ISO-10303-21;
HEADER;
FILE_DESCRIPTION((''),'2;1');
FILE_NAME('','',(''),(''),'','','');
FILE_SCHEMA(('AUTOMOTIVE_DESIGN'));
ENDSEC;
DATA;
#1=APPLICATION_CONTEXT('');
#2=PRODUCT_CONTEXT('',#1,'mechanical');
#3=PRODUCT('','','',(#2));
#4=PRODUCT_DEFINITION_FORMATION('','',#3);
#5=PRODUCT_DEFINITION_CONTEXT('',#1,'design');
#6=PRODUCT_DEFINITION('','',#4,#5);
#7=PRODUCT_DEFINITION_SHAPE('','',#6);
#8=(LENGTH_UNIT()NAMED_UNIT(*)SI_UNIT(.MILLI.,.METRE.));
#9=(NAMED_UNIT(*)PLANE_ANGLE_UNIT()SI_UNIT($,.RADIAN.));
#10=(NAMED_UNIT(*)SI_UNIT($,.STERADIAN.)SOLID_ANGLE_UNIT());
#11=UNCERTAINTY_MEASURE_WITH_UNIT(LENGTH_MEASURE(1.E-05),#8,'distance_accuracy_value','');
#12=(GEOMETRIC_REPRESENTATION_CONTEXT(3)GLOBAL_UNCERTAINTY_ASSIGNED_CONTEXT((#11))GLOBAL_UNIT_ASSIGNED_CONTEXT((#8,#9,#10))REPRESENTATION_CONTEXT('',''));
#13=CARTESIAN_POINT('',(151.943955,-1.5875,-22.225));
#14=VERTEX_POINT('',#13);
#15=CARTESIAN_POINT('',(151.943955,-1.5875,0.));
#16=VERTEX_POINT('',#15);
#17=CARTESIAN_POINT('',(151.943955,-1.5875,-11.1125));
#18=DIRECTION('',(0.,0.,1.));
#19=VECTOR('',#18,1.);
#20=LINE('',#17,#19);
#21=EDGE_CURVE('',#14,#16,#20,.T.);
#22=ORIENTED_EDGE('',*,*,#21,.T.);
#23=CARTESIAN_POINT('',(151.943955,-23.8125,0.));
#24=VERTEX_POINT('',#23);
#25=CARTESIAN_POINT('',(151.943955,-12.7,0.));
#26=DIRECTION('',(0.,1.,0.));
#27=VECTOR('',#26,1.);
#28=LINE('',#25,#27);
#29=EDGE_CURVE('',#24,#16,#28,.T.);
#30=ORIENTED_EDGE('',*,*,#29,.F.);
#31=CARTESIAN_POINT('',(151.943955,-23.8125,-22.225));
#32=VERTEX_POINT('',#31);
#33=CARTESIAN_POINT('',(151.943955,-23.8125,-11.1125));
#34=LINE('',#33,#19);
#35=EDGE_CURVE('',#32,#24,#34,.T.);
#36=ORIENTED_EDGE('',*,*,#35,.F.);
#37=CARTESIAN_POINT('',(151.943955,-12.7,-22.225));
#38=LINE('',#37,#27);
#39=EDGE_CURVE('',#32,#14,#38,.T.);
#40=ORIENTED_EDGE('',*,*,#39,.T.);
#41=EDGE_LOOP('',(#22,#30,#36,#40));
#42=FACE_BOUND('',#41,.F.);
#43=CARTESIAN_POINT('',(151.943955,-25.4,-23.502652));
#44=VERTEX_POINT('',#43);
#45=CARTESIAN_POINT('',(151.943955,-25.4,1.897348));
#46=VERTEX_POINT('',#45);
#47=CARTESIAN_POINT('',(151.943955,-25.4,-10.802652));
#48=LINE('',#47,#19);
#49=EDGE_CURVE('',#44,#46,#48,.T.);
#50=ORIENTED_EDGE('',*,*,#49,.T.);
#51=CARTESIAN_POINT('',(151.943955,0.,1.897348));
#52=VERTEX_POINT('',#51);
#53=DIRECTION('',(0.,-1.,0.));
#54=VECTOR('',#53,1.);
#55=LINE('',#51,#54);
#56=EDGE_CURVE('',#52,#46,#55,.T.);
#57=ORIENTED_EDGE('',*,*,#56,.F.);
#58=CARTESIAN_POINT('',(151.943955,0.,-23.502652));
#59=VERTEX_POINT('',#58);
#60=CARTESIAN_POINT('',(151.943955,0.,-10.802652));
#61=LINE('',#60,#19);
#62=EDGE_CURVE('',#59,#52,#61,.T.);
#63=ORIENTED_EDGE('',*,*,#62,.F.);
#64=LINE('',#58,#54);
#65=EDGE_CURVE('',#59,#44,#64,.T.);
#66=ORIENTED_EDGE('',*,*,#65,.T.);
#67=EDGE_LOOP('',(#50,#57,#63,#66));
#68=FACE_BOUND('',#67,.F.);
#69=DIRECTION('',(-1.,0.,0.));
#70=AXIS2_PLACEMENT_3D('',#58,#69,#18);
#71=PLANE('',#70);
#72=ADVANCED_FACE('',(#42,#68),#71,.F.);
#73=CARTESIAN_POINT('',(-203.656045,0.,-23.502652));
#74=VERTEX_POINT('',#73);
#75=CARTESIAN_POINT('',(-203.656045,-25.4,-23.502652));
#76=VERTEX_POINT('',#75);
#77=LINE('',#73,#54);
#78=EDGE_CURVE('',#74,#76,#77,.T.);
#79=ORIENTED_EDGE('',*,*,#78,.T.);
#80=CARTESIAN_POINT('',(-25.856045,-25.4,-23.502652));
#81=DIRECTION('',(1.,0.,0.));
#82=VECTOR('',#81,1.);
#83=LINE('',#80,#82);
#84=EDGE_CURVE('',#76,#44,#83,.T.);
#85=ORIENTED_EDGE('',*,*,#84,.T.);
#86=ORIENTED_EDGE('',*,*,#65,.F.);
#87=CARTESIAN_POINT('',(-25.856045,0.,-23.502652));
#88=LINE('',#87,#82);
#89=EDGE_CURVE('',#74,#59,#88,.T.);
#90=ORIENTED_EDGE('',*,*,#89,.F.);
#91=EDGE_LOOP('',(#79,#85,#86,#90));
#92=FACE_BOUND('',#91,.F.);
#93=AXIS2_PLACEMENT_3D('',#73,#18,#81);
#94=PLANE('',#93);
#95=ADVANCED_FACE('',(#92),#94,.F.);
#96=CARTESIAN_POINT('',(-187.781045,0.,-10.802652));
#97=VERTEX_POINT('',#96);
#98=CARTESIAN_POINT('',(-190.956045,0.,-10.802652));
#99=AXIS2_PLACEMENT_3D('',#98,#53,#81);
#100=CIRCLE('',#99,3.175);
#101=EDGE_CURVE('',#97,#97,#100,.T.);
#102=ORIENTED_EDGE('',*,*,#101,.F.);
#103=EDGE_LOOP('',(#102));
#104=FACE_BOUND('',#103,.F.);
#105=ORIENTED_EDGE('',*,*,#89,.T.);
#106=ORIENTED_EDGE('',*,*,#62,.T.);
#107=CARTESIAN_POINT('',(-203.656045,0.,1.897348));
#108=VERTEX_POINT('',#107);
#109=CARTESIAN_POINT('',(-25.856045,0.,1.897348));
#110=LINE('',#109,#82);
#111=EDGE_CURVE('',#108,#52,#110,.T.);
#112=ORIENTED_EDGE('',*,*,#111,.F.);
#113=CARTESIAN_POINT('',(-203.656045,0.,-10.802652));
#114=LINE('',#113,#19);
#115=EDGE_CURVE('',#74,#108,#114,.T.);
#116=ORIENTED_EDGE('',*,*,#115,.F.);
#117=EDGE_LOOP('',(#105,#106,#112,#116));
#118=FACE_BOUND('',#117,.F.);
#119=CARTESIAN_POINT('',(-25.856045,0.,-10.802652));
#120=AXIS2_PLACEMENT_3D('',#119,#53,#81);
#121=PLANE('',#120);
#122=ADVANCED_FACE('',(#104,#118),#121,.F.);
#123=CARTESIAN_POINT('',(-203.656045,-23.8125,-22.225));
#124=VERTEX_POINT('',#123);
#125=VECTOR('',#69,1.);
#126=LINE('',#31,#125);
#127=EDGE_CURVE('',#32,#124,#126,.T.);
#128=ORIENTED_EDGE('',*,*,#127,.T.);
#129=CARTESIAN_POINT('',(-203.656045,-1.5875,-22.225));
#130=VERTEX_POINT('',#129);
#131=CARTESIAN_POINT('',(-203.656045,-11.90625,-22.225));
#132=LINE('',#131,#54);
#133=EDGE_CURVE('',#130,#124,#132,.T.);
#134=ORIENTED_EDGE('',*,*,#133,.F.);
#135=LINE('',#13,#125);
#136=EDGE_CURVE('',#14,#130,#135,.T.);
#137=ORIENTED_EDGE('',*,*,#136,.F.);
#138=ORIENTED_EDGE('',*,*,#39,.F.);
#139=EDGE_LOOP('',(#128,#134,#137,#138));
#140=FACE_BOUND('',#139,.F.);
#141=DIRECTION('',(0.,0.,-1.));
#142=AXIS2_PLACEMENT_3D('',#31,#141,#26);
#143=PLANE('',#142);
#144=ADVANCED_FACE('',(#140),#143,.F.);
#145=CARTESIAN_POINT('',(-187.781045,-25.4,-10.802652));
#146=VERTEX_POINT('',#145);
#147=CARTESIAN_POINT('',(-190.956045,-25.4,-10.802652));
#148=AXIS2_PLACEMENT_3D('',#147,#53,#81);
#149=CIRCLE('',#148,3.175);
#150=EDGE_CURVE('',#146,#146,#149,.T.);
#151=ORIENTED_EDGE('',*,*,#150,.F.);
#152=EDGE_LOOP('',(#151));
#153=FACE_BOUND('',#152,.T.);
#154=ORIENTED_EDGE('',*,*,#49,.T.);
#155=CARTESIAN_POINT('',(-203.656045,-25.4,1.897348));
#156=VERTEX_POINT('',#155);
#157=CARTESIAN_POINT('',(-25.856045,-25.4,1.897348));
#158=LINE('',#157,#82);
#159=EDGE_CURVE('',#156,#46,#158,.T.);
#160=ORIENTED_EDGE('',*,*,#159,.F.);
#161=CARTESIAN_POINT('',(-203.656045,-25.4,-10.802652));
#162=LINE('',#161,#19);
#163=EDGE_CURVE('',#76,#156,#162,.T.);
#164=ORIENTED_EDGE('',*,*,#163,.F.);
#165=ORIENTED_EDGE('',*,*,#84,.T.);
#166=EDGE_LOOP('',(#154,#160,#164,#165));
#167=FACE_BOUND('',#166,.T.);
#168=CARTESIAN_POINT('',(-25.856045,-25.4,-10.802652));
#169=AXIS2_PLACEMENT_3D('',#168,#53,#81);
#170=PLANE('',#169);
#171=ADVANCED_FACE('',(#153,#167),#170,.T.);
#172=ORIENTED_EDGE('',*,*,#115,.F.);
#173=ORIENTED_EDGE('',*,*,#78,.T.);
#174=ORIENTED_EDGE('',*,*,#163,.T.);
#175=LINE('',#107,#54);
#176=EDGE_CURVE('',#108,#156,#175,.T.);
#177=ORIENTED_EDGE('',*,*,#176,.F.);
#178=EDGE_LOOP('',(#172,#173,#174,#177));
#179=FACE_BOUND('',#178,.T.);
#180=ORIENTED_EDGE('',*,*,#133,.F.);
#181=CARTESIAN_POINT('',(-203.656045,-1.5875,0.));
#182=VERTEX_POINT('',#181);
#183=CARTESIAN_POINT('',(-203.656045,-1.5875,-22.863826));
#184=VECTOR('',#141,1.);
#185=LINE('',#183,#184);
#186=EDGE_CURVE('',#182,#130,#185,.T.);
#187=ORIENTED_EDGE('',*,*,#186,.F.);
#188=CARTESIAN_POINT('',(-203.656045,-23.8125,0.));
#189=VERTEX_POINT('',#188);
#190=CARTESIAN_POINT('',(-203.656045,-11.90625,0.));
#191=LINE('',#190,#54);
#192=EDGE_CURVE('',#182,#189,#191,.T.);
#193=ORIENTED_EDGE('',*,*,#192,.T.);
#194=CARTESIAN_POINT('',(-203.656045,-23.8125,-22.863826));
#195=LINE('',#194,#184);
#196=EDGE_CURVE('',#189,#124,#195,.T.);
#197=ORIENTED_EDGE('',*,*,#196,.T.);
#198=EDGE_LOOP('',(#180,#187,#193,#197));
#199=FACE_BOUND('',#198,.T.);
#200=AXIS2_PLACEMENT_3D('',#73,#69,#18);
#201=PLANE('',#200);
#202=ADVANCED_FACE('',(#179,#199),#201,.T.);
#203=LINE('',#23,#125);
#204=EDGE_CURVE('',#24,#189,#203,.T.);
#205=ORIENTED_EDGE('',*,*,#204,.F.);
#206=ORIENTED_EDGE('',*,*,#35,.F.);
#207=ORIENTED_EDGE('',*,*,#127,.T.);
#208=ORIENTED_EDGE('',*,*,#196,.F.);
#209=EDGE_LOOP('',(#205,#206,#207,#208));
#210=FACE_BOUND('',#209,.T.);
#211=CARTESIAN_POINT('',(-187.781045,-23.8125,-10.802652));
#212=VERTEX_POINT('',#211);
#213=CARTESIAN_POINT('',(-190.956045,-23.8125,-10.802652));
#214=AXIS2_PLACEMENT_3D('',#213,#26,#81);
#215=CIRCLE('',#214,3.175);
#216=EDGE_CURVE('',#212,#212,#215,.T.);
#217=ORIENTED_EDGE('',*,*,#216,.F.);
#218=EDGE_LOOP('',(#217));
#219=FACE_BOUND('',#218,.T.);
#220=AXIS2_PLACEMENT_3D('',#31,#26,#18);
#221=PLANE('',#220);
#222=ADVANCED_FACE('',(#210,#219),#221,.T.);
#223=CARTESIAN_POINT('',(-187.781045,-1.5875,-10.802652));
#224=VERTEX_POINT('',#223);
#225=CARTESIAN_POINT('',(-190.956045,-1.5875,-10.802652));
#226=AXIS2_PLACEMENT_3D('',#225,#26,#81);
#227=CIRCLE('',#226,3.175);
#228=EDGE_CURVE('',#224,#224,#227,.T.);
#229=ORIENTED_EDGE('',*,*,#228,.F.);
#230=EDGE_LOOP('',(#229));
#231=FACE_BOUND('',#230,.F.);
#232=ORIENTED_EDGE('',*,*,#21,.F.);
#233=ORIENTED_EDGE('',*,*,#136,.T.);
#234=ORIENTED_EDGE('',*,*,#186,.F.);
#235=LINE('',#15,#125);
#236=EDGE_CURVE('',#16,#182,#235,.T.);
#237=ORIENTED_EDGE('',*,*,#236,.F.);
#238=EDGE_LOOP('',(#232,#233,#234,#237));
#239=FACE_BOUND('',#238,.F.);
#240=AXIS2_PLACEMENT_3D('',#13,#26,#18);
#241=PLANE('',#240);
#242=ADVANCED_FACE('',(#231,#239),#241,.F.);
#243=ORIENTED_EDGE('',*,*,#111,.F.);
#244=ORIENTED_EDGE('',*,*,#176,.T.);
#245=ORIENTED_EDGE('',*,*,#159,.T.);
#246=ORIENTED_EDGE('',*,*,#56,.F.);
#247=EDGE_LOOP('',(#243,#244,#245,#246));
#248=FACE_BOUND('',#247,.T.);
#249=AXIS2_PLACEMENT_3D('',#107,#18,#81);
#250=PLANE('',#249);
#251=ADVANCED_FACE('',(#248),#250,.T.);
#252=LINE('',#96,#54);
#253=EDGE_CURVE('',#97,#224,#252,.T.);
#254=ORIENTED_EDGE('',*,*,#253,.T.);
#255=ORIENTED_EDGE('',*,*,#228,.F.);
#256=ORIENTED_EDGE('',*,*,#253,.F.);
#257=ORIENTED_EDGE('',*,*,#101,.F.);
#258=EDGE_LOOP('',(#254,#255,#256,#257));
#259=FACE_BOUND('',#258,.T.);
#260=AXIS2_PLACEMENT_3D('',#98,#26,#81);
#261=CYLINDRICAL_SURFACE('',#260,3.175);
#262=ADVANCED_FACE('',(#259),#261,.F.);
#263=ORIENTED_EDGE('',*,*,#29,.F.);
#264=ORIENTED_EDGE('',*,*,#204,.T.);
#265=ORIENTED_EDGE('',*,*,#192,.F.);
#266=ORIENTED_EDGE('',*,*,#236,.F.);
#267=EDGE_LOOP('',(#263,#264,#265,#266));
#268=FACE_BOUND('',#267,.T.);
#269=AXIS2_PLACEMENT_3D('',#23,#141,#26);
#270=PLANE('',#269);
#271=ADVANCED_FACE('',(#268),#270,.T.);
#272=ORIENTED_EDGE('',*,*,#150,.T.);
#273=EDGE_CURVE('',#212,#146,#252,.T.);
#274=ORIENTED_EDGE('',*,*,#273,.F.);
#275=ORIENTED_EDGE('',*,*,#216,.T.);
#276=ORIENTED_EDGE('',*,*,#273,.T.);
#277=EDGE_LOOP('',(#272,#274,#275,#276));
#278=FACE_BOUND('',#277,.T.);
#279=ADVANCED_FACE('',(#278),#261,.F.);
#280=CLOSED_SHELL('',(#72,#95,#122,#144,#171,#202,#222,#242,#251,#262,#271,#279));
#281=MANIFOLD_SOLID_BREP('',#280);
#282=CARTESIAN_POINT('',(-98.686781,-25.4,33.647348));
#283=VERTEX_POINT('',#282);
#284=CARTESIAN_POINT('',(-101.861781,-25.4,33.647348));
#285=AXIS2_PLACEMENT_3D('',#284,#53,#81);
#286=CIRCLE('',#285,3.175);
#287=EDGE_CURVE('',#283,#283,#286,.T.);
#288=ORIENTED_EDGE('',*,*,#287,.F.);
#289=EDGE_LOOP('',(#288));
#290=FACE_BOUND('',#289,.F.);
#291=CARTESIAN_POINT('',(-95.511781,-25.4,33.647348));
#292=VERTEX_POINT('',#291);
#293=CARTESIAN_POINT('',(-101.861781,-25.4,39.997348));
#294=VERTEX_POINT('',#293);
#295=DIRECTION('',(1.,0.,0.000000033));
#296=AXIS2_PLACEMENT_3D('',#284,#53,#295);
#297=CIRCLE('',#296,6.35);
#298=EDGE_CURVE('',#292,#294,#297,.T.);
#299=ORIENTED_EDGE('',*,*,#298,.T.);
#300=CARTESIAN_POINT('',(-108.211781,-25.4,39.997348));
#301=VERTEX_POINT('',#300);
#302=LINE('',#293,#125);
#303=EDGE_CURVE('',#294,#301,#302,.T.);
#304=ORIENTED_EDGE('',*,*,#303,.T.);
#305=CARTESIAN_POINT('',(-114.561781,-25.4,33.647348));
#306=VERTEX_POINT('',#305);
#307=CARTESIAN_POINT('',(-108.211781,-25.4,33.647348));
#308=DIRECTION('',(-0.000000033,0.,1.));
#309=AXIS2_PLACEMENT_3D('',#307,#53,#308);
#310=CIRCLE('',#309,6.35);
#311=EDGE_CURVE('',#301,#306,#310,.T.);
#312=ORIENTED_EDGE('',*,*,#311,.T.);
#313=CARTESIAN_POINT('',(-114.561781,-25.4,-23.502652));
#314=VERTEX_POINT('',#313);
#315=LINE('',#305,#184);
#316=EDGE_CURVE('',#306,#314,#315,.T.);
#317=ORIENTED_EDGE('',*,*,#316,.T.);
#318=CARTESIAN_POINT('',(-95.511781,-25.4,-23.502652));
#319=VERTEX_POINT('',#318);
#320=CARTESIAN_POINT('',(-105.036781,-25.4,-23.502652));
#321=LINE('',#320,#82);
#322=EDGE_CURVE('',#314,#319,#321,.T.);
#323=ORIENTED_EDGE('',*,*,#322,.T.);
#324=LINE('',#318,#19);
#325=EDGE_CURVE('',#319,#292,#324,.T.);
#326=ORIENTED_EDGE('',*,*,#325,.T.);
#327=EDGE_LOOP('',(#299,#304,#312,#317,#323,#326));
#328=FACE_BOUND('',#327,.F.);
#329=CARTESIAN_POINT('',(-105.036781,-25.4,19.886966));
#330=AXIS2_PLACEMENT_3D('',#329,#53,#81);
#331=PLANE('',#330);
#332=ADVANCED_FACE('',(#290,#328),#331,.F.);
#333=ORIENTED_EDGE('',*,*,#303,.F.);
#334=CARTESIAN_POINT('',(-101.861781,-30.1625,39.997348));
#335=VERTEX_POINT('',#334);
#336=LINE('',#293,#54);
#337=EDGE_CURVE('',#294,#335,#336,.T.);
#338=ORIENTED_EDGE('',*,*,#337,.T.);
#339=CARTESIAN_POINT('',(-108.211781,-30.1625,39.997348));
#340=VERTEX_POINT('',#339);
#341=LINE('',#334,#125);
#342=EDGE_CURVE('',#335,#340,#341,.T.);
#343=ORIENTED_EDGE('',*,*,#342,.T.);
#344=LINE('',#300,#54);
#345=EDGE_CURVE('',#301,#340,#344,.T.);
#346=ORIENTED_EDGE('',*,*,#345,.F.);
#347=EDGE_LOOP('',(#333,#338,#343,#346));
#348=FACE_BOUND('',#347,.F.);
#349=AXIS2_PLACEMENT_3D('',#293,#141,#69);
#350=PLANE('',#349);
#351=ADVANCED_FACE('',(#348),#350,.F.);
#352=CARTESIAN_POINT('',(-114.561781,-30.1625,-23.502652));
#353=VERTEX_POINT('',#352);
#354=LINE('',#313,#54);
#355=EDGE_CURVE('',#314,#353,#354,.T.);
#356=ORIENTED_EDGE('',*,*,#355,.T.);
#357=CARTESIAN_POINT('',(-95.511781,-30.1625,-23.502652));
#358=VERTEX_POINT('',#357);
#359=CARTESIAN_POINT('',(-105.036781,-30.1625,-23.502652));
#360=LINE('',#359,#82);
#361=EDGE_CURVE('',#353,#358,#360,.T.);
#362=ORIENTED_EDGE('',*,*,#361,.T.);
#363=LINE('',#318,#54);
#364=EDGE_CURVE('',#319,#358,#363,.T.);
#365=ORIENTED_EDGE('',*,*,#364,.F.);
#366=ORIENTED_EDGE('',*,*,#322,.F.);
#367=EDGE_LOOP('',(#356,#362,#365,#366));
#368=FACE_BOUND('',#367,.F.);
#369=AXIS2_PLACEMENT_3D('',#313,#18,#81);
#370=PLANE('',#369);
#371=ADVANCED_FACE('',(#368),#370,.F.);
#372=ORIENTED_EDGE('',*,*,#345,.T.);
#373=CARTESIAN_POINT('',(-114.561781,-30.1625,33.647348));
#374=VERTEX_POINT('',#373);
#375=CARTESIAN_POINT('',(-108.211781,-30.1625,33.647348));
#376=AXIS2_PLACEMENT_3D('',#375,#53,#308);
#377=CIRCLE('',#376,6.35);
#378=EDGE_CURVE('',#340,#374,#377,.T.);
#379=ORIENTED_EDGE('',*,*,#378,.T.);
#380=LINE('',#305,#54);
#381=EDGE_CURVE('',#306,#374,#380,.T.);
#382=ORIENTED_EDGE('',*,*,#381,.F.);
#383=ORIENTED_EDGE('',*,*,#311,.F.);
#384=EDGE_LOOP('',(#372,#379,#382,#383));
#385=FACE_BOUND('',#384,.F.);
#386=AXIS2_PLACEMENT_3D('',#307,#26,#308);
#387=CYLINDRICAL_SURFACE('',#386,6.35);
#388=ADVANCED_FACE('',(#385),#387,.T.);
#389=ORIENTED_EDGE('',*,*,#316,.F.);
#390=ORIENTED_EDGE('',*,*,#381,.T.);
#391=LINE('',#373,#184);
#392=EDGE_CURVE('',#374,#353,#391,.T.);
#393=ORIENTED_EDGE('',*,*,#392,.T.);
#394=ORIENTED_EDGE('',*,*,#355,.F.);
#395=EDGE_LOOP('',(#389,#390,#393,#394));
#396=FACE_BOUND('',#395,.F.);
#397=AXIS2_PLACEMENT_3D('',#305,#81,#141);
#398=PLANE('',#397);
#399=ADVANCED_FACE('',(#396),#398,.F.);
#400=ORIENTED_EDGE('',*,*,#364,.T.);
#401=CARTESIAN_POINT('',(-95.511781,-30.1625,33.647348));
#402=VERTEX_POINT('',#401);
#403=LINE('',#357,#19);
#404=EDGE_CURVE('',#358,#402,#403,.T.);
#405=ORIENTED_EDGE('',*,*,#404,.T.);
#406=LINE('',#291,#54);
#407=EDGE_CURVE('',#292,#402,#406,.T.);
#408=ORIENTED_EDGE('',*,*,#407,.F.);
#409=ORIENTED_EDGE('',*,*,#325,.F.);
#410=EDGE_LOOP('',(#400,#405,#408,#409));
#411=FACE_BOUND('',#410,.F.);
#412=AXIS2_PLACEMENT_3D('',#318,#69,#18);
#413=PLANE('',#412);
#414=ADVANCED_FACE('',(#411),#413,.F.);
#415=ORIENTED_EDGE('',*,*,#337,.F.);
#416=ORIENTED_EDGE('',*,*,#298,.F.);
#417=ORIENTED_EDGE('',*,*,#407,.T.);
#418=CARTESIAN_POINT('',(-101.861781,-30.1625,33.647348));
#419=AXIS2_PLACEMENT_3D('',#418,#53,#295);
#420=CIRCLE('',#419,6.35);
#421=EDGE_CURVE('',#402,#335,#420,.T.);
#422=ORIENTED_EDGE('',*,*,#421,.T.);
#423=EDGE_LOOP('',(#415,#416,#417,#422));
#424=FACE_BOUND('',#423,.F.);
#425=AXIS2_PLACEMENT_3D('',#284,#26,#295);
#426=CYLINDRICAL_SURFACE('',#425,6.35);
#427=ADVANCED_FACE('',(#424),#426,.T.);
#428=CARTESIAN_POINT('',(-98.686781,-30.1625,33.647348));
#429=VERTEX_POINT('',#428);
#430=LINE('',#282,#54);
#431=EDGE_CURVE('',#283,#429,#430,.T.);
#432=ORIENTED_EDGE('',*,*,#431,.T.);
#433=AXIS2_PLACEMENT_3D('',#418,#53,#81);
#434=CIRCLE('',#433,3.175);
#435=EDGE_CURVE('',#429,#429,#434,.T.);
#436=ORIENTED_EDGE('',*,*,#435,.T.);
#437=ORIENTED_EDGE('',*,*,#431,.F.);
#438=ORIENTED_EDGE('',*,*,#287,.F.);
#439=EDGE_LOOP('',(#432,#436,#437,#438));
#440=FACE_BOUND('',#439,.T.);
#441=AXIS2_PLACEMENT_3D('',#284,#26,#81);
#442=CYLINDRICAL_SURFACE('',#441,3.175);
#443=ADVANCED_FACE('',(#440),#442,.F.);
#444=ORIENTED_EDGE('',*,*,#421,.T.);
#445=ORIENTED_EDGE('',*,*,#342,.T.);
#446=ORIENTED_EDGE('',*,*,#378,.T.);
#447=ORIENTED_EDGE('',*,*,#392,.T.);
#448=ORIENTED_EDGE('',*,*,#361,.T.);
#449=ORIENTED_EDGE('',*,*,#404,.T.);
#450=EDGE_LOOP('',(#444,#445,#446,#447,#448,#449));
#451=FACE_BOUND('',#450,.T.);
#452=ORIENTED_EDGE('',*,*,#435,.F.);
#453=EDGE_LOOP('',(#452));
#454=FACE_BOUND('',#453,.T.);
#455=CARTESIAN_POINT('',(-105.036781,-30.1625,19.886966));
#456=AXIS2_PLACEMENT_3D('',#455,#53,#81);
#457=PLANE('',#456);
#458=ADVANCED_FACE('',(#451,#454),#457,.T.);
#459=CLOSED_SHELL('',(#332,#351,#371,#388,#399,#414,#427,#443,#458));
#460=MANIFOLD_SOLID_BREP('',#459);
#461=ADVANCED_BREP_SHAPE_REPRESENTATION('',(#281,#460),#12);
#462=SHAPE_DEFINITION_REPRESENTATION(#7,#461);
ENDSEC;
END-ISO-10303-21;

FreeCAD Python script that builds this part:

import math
import FreeCAD as App
import Part
import Sketcher
from FreeCAD import Vector
Q = App.Units.Quantity


def add_polygon(sketch, points):
    """Adds a closed chain of lines whose ends are joined by coincident constraints."""
    first, n = sketch.GeometryCount, len(points)
    for a, b in zip(points, points[1:] + points[:1]):
        sketch.addGeometry(Part.LineSegment(App.Vector(*a, 0), App.Vector(*b, 0)), False)
    for i in range(n):
        sketch.addConstraint(Sketcher.Constraint("Coincident", first + i, 2, first + (i + 1) % n, 1))

doc = App.newDocument("Part")
body = doc.addObject("PartDesign::Body", "Body")

# Sketch on XZ plane
sketch1 = doc.addObject("Sketcher::SketchObject", "Sketch")
body.addObject(sketch1)
sketch1.AttachmentSupport = (doc.XZ_Plane, [""])
sketch1.MapMode = "FlatFace"
add_polygon(sketch1, [(-203.7, 1.9), (-203.7, -23.5), (151.9, -23.5), (151.9, 1.9)])  # lines 0-3
sketch1.addGeometry(Part.Circle(Vector(-191, -10.8, 0), Vector(0, 0, 1), 3.2), False)  # 4
sketch1.addConstraint([
    Sketcher.Constraint("Vertical", 0),
    Sketcher.Constraint("Horizontal", 1),
    Sketcher.Constraint("Vertical", 2),
    Sketcher.Constraint("Horizontal", 3),
    Sketcher.Constraint("Diameter", 4, Q("0.25 in")),
    Sketcher.Constraint("DistanceX", 1, 1, 1, 2, Q("14 in")),
    Sketcher.Constraint("DistanceY", 0, 2, 0, 1, Q("1 in")),
    Sketcher.Constraint("DistanceX", 0, 2, 4, 3, Q("0.5 in")),
    Sketcher.Constraint("DistanceY", 0, 2, 4, 3, Q("0.5 in")),
    Sketcher.Constraint("DistanceX", 4, 3, -1, 1, Q("190.956045 mm")),
    Sketcher.Constraint("DistanceY", 4, 3, -1, 1, Q("10.802652 mm")),
])
pad1 = doc.addObject("PartDesign::Pad", "Pad")
body.addObject(pad1)
pad1.Profile = sketch1
pad1.Length = Q("1 in")

# Sketch on YZ plane
sketch2 = doc.addObject("Sketcher::SketchObject", "Sketch001")
body.addObject(sketch2)
sketch2.AttachmentSupport = (doc.YZ_Plane, [""])
sketch2.MapMode = "FlatFace"
sketch2.AttachmentOffset = App.Placement(Vector(0, 0, 151.943955), App.Rotation())
add_polygon(sketch2, [(-24, 0), (-24, -22), (-2, -22), (-2, 0)])  # lines 0-3
sketch2.addConstraint([
    Sketcher.Constraint("Vertical", 0),
    Sketcher.Constraint("Horizontal", 1),
    Sketcher.Constraint("Vertical", 2),
    Sketcher.Constraint("Horizontal", 3),
    Sketcher.Constraint("PointOnObject", 2, 2, -1),
    Sketcher.Constraint("Equal", 3, 0),
    Sketcher.Constraint("DistanceX", 1, 1, 1, 2, Q("0.875 in")),
    Sketcher.Constraint("DistanceX", 0, 2, -1, 1, Q("0.9375 in")),
])
pocket1 = doc.addObject("PartDesign::Pocket", "Pocket")
body.addObject(pocket1)
pocket1.Profile = sketch2
pocket1.Type = "ThroughAll"
body2 = doc.addObject("PartDesign::Body", "Body001")

# Sketch on XZ plane
sketch3 = doc.addObject("Sketcher::SketchObject", "Sketch002")
body2.addObject(sketch3)
sketch3.AttachmentSupport = (doc.getObject("XZ_Plane001"), [""])
sketch3.MapMode = "FlatFace"
sketch3.AttachmentOffset = App.Placement(Vector(0, 0, 1 * 25.4), App.Rotation())
sketch3.addGeometry([
    Part.LineSegment(Vector(-114.6, 33.6, 0), Vector(-114.6, -23.5, 0)),  # 0
    Part.LineSegment(Vector(-114.6, -23.5, 0), Vector(-95.5, -23.5, 0)),  # 1
    Part.LineSegment(Vector(-95.5, -23.5, 0), Vector(-95.5, 33.6, 0)),  # 2
    Part.ArcOfCircle(Part.Circle(Vector(-101.9, 33.6, 0), Vector(0, 0, 1), 6.4), math.radians(0), math.radians(90)),  # 3
    Part.LineSegment(Vector(-101.9, 40, 0), Vector(-108.2, 40, 0)),  # 4
    Part.ArcOfCircle(Part.Circle(Vector(-108.2, 33.6, 0), Vector(0, 0, 1), 6.4), math.radians(90), math.radians(180)),  # 5
    Part.Circle(Vector(-101.9, 33.6, 0), Vector(0, 0, 1), 3.2),  # 6
], False)
sketch3.addConstraint([
    Sketcher.Constraint("Coincident", 0, 2, 1, 1),
    Sketcher.Constraint("Coincident", 1, 2, 2, 1),
    Sketcher.Constraint("Tangent", 2, 2, 3, 1),
    Sketcher.Constraint("Tangent", 3, 2, 4, 1),
    Sketcher.Constraint("Tangent", 4, 2, 5, 1),
    Sketcher.Constraint("Tangent", 5, 2, 0, 1),
    Sketcher.Constraint("Vertical", 0),
    Sketcher.Constraint("Horizontal", 1),
    Sketcher.Constraint("Vertical", 2),
    Sketcher.Constraint("Horizontal", 4),
    Sketcher.Constraint("Coincident", 6, 3, 3, 3),
    Sketcher.Constraint("Equal", 3, 5),
    Sketcher.Constraint("Diameter", 6, Q("0.25 in")),
    Sketcher.Constraint("Radius", 3, Q("0.25 in")),
    Sketcher.Constraint("DistanceX", 1, 1, 1, 2, Q("0.75 in")),
    Sketcher.Constraint("DistanceY", 0, 2, 0, 1, Q("2.25 in")),
    Sketcher.Constraint("DistanceX", 3, 3, -1, 1, Q("101.861781 mm")),
    Sketcher.Constraint("DistanceY", -1, 1, 4, 2, Q("39.997348 mm")),
])
pad2 = doc.addObject("PartDesign::Pad", "Pad001")
body2.addObject(pad2)
pad2.Profile = sketch3
pad2.Length = Q("0.1875 in")

doc.recompute()
